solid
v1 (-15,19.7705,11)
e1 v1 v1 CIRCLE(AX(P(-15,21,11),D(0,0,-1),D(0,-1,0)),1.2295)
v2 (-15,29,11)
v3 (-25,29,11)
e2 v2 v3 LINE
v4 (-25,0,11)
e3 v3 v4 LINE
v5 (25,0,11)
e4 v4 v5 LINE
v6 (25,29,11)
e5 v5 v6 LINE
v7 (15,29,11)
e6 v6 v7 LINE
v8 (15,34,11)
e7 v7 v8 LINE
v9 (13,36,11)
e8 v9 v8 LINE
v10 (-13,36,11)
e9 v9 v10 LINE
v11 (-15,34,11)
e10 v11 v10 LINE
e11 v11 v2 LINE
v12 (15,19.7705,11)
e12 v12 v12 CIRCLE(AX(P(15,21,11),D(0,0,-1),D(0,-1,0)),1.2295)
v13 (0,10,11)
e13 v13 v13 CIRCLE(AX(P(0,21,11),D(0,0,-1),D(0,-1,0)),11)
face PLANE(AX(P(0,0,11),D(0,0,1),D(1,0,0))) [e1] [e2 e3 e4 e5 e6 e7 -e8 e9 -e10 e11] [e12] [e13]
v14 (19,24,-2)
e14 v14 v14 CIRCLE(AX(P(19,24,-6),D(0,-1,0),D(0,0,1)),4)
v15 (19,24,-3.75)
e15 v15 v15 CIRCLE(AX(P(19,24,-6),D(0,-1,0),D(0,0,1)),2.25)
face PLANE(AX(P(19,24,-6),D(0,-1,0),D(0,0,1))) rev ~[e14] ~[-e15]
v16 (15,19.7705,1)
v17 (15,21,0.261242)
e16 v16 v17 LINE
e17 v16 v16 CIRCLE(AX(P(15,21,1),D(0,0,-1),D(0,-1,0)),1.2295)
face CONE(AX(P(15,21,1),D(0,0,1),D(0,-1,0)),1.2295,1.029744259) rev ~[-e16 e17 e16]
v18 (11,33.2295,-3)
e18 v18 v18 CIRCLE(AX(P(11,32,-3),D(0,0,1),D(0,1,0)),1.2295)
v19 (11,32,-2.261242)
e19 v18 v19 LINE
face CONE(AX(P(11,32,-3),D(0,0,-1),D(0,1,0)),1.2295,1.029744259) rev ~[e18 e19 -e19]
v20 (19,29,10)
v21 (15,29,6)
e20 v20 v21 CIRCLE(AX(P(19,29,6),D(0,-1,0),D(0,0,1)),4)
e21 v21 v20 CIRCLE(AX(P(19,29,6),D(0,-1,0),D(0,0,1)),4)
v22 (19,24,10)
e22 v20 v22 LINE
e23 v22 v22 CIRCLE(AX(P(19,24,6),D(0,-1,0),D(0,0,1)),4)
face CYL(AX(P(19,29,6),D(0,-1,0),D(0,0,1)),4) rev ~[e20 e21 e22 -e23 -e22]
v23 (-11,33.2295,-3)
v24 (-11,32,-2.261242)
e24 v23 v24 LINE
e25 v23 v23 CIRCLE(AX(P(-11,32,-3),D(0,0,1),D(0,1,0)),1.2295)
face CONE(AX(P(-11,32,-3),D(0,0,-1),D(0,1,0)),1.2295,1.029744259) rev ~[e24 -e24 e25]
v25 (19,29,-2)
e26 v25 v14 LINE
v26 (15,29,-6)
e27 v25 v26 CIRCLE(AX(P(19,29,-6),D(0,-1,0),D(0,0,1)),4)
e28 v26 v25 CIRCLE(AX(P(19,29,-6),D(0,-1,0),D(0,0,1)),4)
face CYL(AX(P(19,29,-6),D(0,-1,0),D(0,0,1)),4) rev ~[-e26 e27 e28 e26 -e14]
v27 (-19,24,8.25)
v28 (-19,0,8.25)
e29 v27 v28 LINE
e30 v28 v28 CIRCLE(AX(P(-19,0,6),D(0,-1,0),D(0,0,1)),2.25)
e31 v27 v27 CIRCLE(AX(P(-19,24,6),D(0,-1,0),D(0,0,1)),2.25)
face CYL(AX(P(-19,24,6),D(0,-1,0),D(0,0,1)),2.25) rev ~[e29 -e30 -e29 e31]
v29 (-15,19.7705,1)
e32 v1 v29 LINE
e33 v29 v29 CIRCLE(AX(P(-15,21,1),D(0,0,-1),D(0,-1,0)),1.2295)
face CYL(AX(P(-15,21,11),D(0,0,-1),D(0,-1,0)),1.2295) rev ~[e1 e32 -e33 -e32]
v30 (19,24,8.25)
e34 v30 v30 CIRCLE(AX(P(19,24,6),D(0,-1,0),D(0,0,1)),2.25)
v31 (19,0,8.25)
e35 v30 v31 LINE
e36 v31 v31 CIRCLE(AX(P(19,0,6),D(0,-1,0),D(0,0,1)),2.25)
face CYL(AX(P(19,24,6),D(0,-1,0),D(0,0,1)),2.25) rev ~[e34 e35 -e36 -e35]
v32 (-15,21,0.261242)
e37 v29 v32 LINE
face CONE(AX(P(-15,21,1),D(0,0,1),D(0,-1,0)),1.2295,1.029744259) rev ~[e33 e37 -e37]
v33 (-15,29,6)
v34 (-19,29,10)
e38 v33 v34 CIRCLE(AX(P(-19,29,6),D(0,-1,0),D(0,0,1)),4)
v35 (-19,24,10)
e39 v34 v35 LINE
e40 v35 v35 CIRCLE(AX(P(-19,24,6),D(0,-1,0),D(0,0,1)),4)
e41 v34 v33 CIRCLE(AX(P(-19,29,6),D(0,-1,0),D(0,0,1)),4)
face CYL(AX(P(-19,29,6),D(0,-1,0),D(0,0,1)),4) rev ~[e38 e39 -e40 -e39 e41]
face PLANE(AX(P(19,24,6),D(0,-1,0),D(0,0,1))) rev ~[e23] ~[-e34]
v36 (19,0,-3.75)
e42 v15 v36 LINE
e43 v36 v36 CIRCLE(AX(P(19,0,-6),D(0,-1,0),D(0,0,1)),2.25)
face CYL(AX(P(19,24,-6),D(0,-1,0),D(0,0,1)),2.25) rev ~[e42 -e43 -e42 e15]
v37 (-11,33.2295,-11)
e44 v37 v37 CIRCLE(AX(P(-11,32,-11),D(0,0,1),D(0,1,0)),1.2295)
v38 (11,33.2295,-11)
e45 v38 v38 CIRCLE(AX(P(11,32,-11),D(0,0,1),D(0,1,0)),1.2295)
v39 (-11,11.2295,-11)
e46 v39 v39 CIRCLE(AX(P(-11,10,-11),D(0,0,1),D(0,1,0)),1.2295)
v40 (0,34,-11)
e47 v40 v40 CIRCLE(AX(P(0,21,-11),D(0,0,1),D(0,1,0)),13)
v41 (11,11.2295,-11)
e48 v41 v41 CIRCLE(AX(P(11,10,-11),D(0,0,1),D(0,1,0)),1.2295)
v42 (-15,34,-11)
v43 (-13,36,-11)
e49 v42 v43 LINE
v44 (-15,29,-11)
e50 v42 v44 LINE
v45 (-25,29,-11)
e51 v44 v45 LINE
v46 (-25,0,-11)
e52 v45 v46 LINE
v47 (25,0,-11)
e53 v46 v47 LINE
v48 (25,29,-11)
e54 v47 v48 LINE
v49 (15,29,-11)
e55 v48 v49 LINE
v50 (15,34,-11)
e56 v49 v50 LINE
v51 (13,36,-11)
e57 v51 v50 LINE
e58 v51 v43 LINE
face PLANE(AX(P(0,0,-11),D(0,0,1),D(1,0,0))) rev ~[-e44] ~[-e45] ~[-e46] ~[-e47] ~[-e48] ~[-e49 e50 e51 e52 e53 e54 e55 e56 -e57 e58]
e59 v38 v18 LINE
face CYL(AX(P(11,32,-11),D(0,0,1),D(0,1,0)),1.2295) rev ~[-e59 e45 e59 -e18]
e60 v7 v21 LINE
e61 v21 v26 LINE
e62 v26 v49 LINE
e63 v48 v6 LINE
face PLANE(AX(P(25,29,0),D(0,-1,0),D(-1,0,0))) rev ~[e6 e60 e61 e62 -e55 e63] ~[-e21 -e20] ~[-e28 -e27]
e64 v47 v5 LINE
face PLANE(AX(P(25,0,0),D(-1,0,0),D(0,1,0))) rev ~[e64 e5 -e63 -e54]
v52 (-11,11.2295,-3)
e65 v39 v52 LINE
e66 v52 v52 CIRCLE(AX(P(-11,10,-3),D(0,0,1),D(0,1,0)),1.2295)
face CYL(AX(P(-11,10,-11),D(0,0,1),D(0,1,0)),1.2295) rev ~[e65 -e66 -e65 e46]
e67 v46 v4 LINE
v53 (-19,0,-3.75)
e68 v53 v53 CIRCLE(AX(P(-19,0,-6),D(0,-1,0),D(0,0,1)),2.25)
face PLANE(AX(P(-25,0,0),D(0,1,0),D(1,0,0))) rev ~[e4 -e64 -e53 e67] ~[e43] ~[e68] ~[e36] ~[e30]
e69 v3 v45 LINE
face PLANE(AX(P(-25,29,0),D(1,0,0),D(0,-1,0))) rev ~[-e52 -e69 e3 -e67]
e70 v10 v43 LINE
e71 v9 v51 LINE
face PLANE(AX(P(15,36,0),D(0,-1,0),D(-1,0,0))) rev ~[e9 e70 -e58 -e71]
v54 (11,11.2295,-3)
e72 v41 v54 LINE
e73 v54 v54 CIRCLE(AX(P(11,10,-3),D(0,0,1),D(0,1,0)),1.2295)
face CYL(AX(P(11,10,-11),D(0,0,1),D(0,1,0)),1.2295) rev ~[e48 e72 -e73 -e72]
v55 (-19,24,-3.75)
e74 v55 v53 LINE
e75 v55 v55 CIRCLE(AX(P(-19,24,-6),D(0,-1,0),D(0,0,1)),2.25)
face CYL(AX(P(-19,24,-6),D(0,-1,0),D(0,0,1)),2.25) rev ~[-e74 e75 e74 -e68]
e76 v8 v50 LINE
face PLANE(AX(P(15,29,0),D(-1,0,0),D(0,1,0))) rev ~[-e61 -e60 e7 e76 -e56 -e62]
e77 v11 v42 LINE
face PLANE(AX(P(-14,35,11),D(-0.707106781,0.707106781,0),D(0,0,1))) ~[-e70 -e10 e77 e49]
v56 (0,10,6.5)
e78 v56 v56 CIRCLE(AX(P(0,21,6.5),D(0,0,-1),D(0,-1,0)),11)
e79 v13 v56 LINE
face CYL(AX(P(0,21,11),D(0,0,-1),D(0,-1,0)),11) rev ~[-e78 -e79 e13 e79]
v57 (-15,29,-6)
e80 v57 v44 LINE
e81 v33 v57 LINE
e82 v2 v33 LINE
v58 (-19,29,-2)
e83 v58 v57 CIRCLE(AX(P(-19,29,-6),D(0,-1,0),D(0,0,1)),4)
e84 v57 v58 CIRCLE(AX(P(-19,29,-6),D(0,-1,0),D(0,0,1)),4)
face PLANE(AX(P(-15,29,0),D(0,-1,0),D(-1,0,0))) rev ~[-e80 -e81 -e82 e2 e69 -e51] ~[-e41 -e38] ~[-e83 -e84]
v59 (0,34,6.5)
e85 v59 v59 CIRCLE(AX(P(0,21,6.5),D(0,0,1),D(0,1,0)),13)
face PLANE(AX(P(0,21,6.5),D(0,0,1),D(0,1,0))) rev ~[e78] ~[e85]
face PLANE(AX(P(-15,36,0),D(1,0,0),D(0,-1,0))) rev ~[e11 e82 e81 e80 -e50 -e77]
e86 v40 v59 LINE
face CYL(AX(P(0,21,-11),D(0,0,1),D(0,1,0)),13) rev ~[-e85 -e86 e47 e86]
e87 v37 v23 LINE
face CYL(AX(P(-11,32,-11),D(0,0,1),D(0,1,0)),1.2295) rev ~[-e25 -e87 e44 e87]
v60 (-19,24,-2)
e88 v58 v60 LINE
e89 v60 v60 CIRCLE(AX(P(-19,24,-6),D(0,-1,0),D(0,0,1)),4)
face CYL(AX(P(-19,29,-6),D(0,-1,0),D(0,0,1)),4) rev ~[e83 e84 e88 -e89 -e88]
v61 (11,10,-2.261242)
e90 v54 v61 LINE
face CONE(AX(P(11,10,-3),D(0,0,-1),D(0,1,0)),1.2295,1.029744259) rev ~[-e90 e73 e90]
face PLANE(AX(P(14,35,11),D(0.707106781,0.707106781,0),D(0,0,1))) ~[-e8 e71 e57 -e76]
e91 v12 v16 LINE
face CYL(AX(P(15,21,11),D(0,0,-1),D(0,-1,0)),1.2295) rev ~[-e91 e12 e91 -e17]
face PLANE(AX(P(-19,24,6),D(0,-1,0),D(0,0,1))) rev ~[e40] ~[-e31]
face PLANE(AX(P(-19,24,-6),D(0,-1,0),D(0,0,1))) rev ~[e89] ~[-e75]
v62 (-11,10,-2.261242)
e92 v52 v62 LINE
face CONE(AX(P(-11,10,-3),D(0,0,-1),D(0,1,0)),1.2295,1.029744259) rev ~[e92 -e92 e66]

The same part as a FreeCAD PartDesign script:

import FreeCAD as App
import Part
import Sketcher

V = App.Vector
Q = App.Units.Quantity


def edges_at(feature, points):
    """Names of the edges that pass closest to the given points."""
    edges = feature.Shape.Edges
    near = lambda p: min(range(len(edges)), key=lambda i: edges[i].distToShape(Part.Vertex(*p))[0])
    return sorted({f"Edge{near(p) + 1}" for p in points})


def add_polygon(sketch, points):
    """Adds a closed chain of lines whose ends are joined by coincident constraints."""
    first, n = sketch.GeometryCount, len(points)
    for a, b in zip(points, points[1:] + points[:1]):
        sketch.addGeometry(Part.LineSegment(App.Vector(*a, 0), App.Vector(*b, 0)), False)
    for i in range(n):
        sketch.addConstraint(Sketcher.Constraint("Coincident", first + i, 2, first + (i + 1) % n, 1))

doc = App.newDocument("Part")
params = doc.addObject("Spreadsheet::Sheet", "Params")
for row, (alias, value) in enumerate([
    ("sketch1_width", "50 mm"),
    ("sketch1_width2", "30 mm"),
    ("sketch1_height", "7 mm"),
    ("pad1_length", "22 mm"),
    ("sketch2_diameter", "22 mm"),
    ("hole_diameter", "22 mm"),
    ("chamfer_size", "2 mm"),
    ("sketch3_diameter", "4.5 mm"),
    ("hole2_diameter", "4.5 mm"),
    ("hole2_cbore_diameter", "8 mm"),
    ("hole2_cbore_depth", "5 mm"),
    ("hole3_diameter", "2.459 mm"),
    ("hole3_depth", "10 mm"),
    ("sketch5_diameter", "26 mm"),
    ("hole4_diameter", "26 mm"),
    ("hole4_depth", "17.5 mm"),
    ("hole5_diameter", "2.459 mm"),
    ("hole5_depth", "8 mm"),
], start=1):
    params.set(f"A{row}", alias)
    params.set(f"B{row}", "=" + value)
    params.setAlias(f"B{row}", alias)

body = doc.addObject("PartDesign::Body", "Body")

sketch1 = body.newObject("Sketcher::SketchObject", "Sketch")
sketch1.AttachmentSupport = (doc.getObject("XY_Plane"), [""])
sketch1.MapMode = "FlatFace"
add_polygon(sketch1, [(-25, 29), (-25, 0), (25, 0), (25, 29), (15, 29), (15, 36), (-15, 36), (-15, 29)])
sketch1.addConstraint(Sketcher.Constraint("Vertical", 0))
sketch1.addConstraint(Sketcher.Constraint("Horizontal", 1))
sketch1.addConstraint(Sketcher.Constraint("Vertical", 2))
sketch1.addConstraint(Sketcher.Constraint("Horizontal", 3))
sketch1.addConstraint(Sketcher.Constraint("Vertical", 4))
sketch1.addConstraint(Sketcher.Constraint("Horizontal", 5))
sketch1.addConstraint(Sketcher.Constraint("Vertical", 6))
sketch1.addConstraint(Sketcher.Constraint("Horizontal", 7))
sketch1.addConstraint(Sketcher.Constraint("Symmetric", 0, 2, 1, 2, -1, 1))
sketch1.addConstraint(Sketcher.Constraint("Symmetric", 3, 2, 6, 2, -2))
sketch1.addConstraint(Sketcher.Constraint("DistanceX", 1, 1, 1, 2, Q("50 mm")))
sketch1.addConstraint(Sketcher.Constraint("DistanceX", 5, 2, 5, 1, Q("30 mm")))
sketch1.addConstraint(Sketcher.Constraint("DistanceY", 4, 1, 4, 2, Q("7 mm")))
sketch1.addConstraint(Sketcher.Constraint("DistanceY", -1, 1, 4, 2, Q("36 mm")))
sketch1.setExpression("Constraints[18]", "Params.sketch1_width")
sketch1.setExpression("Constraints[19]", "Params.sketch1_width2")
sketch1.setExpression("Constraints[20]", "Params.sketch1_height")
pad1 = body.newObject("PartDesign::Pad", "Pad")
pad1.Profile = sketch1
pad1.setExpression("Length", "Params.pad1_length")
pad1.Midplane = True

sketch2 = body.newObject("Sketcher::SketchObject", "Sketch001")
sketch2.AttachmentSupport = (doc.getObject("XY_Plane"), [""])
sketch2.MapMode = "FlatFace"
sketch2.AttachmentOffset = App.Placement(V(0, 0, 11), App.Rotation())
sketch2.addGeometry(Part.Circle(V(0, 21, 0), V(0, 0, 1), 11), False)
sketch2.addConstraint(Sketcher.Constraint("PointOnObject", 0, 3, -2))
sketch2.addConstraint(Sketcher.Constraint("Diameter", 0, Q("22 mm")))
sketch2.addConstraint(Sketcher.Constraint("DistanceY", -1, 1, 0, 3, Q("21 mm")))
sketch2.setExpression("Constraints[1]", "Params.sketch2_diameter")
doc.recompute()
hole = body.newObject("PartDesign::Hole", "Hole")
hole.Profile = sketch2
hole.ThreadType = "None"
hole.setExpression("Diameter", "Params.hole_diameter")
hole.DepthType = "ThroughAll"
doc.recompute()

chamfer = body.newObject("PartDesign::Chamfer", "Chamfer")
chamfer.Base = (hole, edges_at(hole, [(-15, 36, 0), (15, 36, 0)]))
chamfer.setExpression("Size", "Params.chamfer_size")

sketch3 = body.newObject("Sketcher::SketchObject", "Sketch002")
sketch3.AttachmentSupport = (doc.getObject("XZ_Plane"), [""])
sketch3.MapMode = "FlatFace"
sketch3.AttachmentOffset = App.Placement(V(0, 0, -29), App.Rotation())
sketch3.addGeometry(Part.Circle(V(-19, -6, 0), V(0, 0, 1), 2.2), False)
sketch3.addGeometry(Part.Circle(V(19, -6, 0), V(0, 0, 1), 2.2), False)
sketch3.addGeometry(Part.Circle(V(-19, 6, 0), V(0, 0, 1), 2.2), False)
sketch3.addGeometry(Part.Circle(V(19, 6, 0), V(0, 0, 1), 2.2), False)
sketch3.addConstraint(Sketcher.Constraint("Equal", 0, 1))
sketch3.addConstraint(Sketcher.Constraint("Equal", 1, 2))
sketch3.addConstraint(Sketcher.Constraint("Equal", 2, 3))
sketch3.addConstraint(Sketcher.Constraint("Symmetric", 1, 3, 2, 3, -1, 1))
sketch3.addConstraint(Sketcher.Constraint("Symmetric", 0, 3, 3, 3, -1, 1))
sketch3.addConstraint(Sketcher.Constraint("Symmetric", 0, 3, 1, 3, -2))
sketch3.addConstraint(Sketcher.Constraint("Diameter", 0, Q("4.5 mm")))
sketch3.addConstraint(Sketcher.Constraint("DistanceX", 0, 3, -1, 1, Q("19 mm")))
sketch3.addConstraint(Sketcher.Constraint("DistanceY", 0, 3, -1, 1, Q("6 mm")))
sketch3.setExpression("Constraints[6]", "Params.sketch3_diameter")
doc.recompute()
hole2 = body.newObject("PartDesign::Hole", "Hole001")
hole2.Profile = sketch3
hole2.ThreadType = "None"
hole2.setExpression("Diameter", "Params.hole2_diameter")
hole2.DepthType = "ThroughAll"
hole2.HoleCutType = "Counterbore"
hole2.setExpression("HoleCutDiameter", "Params.hole2_cbore_diameter")
hole2.setExpression("HoleCutDepth", "Params.hole2_cbore_depth")
hole2.Reversed = True

sketch4 = body.newObject("Sketcher::SketchObject", "Sketch003")
sketch4.AttachmentSupport = (doc.getObject("XY_Plane"), [""])
sketch4.MapMode = "FlatFace"
sketch4.AttachmentOffset = App.Placement(V(0, 0, 11), App.Rotation())
sketch4.addGeometry(Part.Circle(V(-15, 21, 0), V(0, 0, 1), 1.2), False)
sketch4.addGeometry(Part.Circle(V(15, 21, 0), V(0, 0, 1), 1.2), False)
sketch4.addConstraint(Sketcher.Constraint("Equal", 0, 1))
sketch4.addConstraint(Sketcher.Constraint("Symmetric", 0, 3, 1, 3, -2))
sketch4.addConstraint(Sketcher.Constraint("Diameter", 0, Q("2.459 mm")))
sketch4.addConstraint(Sketcher.Constraint("DistanceX", 0, 3, -1, 1, Q("15 mm")))
sketch4.addConstraint(Sketcher.Constraint("DistanceY", -1, 1, 0, 3, Q("21 mm")))
doc.recompute()
hole3 = body.newObject("PartDesign::Hole", "Hole002")
hole3.Profile = sketch4
hole3.ThreadType = "None"
hole3.setExpression("Diameter", "Params.hole3_diameter")
hole3.DepthType = "Dimension"
hole3.setExpression("Depth", "Params.hole3_depth")
hole3.DrillPoint = "Angled"
hole3.DrillPointAngle = 118

sketch5 = body.newObject("Sketcher::SketchObject", "Sketch004")
sketch5.AttachmentSupport = (doc.getObject("XY_Plane"), [""])
sketch5.MapMode = "FlatFace"
sketch5.AttachmentOffset = App.Placement(V(0, 0, -11), App.Rotation())
sketch5.addGeometry(Part.Circle(V(0, 21, 0), V(0, 0, 1), 13), False)
sketch5.addConstraint(Sketcher.Constraint("PointOnObject", 0, 3, -2))
sketch5.addConstraint(Sketcher.Constraint("Diameter", 0, Q("26 mm")))
sketch5.addConstraint(Sketcher.Constraint("DistanceY", -1, 1, 0, 3, Q("21 mm")))
sketch5.setExpression("Constraints[1]", "Params.sketch5_diameter")
doc.recompute()
hole4 = body.newObject("PartDesign::Hole", "Hole003")
hole4.Profile = sketch5
hole4.ThreadType = "None"
hole4.setExpression("Diameter", "Params.hole4_diameter")
hole4.DepthType = "Dimension"
hole4.setExpression("Depth", "Params.hole4_depth")
hole4.DrillPoint = "Flat"
hole4.Reversed = True

sketch6 = body.newObject("Sketcher::SketchObject", "Sketch005")
sketch6.AttachmentSupport = (doc.getObject("XY_Plane"), [""])
sketch6.MapMode = "FlatFace"
sketch6.AttachmentOffset = App.Placement(V(0, 0, -11), App.Rotation())
sketch6.addGeometry(Part.Circle(V(11, 32, 0), V(0, 0, 1), 1.2), False)
sketch6.addGeometry(Part.Circle(V(11, 10, 0), V(0, 0, 1), 1.2), False)
sketch6.addGeometry(Part.Circle(V(-11, 10, 0), V(0, 0, 1), 1.2), False)
sketch6.addGeometry(Part.Circle(V(-11, 32, 0), V(0, 0, 1), 1.2), False)
sketch6.addConstraint(Sketcher.Constraint("Equal", 0, 1))
sketch6.addConstraint(Sketcher.Constraint("Equal", 1, 2))
sketch6.addConstraint(Sketcher.Constraint("Equal", 2, 3))
sketch6.addConstraint(Sketcher.Constraint("Symmetric", 1, 3, 2, 3, -2))
sketch6.addConstraint(Sketcher.Constraint("Symmetric", 0, 3, 3, 3, -2))
sketch6.addConstraint(Sketcher.Constraint("Vertical", 0, 3, 1, 3))
sketch6.addConstraint(Sketcher.Constraint("Diameter", 0, Q("2.459 mm")))
sketch6.addConstraint(Sketcher.Constraint("DistanceX", -1, 1, 0, 3, Q("11 mm")))
sketch6.addConstraint(Sketcher.Constraint("DistanceY", -1, 1, 0, 3, Q("32 mm")))
sketch6.addConstraint(Sketcher.Constraint("DistanceY", -1, 1, 1, 3, Q("10 mm")))
doc.recompute()
hole5 = body.newObject("PartDesign::Hole", "Hole004")
hole5.Profile = sketch6
hole5.ThreadType = "None"
hole5.setExpression("Diameter", "Params.hole5_diameter")
hole5.DepthType = "Dimension"
hole5.setExpression("Depth", "Params.hole5_depth")
hole5.DrillPoint = "Angled"
hole5.DrillPointAngle = 118
hole5.Reversed = True

doc.recompute()
